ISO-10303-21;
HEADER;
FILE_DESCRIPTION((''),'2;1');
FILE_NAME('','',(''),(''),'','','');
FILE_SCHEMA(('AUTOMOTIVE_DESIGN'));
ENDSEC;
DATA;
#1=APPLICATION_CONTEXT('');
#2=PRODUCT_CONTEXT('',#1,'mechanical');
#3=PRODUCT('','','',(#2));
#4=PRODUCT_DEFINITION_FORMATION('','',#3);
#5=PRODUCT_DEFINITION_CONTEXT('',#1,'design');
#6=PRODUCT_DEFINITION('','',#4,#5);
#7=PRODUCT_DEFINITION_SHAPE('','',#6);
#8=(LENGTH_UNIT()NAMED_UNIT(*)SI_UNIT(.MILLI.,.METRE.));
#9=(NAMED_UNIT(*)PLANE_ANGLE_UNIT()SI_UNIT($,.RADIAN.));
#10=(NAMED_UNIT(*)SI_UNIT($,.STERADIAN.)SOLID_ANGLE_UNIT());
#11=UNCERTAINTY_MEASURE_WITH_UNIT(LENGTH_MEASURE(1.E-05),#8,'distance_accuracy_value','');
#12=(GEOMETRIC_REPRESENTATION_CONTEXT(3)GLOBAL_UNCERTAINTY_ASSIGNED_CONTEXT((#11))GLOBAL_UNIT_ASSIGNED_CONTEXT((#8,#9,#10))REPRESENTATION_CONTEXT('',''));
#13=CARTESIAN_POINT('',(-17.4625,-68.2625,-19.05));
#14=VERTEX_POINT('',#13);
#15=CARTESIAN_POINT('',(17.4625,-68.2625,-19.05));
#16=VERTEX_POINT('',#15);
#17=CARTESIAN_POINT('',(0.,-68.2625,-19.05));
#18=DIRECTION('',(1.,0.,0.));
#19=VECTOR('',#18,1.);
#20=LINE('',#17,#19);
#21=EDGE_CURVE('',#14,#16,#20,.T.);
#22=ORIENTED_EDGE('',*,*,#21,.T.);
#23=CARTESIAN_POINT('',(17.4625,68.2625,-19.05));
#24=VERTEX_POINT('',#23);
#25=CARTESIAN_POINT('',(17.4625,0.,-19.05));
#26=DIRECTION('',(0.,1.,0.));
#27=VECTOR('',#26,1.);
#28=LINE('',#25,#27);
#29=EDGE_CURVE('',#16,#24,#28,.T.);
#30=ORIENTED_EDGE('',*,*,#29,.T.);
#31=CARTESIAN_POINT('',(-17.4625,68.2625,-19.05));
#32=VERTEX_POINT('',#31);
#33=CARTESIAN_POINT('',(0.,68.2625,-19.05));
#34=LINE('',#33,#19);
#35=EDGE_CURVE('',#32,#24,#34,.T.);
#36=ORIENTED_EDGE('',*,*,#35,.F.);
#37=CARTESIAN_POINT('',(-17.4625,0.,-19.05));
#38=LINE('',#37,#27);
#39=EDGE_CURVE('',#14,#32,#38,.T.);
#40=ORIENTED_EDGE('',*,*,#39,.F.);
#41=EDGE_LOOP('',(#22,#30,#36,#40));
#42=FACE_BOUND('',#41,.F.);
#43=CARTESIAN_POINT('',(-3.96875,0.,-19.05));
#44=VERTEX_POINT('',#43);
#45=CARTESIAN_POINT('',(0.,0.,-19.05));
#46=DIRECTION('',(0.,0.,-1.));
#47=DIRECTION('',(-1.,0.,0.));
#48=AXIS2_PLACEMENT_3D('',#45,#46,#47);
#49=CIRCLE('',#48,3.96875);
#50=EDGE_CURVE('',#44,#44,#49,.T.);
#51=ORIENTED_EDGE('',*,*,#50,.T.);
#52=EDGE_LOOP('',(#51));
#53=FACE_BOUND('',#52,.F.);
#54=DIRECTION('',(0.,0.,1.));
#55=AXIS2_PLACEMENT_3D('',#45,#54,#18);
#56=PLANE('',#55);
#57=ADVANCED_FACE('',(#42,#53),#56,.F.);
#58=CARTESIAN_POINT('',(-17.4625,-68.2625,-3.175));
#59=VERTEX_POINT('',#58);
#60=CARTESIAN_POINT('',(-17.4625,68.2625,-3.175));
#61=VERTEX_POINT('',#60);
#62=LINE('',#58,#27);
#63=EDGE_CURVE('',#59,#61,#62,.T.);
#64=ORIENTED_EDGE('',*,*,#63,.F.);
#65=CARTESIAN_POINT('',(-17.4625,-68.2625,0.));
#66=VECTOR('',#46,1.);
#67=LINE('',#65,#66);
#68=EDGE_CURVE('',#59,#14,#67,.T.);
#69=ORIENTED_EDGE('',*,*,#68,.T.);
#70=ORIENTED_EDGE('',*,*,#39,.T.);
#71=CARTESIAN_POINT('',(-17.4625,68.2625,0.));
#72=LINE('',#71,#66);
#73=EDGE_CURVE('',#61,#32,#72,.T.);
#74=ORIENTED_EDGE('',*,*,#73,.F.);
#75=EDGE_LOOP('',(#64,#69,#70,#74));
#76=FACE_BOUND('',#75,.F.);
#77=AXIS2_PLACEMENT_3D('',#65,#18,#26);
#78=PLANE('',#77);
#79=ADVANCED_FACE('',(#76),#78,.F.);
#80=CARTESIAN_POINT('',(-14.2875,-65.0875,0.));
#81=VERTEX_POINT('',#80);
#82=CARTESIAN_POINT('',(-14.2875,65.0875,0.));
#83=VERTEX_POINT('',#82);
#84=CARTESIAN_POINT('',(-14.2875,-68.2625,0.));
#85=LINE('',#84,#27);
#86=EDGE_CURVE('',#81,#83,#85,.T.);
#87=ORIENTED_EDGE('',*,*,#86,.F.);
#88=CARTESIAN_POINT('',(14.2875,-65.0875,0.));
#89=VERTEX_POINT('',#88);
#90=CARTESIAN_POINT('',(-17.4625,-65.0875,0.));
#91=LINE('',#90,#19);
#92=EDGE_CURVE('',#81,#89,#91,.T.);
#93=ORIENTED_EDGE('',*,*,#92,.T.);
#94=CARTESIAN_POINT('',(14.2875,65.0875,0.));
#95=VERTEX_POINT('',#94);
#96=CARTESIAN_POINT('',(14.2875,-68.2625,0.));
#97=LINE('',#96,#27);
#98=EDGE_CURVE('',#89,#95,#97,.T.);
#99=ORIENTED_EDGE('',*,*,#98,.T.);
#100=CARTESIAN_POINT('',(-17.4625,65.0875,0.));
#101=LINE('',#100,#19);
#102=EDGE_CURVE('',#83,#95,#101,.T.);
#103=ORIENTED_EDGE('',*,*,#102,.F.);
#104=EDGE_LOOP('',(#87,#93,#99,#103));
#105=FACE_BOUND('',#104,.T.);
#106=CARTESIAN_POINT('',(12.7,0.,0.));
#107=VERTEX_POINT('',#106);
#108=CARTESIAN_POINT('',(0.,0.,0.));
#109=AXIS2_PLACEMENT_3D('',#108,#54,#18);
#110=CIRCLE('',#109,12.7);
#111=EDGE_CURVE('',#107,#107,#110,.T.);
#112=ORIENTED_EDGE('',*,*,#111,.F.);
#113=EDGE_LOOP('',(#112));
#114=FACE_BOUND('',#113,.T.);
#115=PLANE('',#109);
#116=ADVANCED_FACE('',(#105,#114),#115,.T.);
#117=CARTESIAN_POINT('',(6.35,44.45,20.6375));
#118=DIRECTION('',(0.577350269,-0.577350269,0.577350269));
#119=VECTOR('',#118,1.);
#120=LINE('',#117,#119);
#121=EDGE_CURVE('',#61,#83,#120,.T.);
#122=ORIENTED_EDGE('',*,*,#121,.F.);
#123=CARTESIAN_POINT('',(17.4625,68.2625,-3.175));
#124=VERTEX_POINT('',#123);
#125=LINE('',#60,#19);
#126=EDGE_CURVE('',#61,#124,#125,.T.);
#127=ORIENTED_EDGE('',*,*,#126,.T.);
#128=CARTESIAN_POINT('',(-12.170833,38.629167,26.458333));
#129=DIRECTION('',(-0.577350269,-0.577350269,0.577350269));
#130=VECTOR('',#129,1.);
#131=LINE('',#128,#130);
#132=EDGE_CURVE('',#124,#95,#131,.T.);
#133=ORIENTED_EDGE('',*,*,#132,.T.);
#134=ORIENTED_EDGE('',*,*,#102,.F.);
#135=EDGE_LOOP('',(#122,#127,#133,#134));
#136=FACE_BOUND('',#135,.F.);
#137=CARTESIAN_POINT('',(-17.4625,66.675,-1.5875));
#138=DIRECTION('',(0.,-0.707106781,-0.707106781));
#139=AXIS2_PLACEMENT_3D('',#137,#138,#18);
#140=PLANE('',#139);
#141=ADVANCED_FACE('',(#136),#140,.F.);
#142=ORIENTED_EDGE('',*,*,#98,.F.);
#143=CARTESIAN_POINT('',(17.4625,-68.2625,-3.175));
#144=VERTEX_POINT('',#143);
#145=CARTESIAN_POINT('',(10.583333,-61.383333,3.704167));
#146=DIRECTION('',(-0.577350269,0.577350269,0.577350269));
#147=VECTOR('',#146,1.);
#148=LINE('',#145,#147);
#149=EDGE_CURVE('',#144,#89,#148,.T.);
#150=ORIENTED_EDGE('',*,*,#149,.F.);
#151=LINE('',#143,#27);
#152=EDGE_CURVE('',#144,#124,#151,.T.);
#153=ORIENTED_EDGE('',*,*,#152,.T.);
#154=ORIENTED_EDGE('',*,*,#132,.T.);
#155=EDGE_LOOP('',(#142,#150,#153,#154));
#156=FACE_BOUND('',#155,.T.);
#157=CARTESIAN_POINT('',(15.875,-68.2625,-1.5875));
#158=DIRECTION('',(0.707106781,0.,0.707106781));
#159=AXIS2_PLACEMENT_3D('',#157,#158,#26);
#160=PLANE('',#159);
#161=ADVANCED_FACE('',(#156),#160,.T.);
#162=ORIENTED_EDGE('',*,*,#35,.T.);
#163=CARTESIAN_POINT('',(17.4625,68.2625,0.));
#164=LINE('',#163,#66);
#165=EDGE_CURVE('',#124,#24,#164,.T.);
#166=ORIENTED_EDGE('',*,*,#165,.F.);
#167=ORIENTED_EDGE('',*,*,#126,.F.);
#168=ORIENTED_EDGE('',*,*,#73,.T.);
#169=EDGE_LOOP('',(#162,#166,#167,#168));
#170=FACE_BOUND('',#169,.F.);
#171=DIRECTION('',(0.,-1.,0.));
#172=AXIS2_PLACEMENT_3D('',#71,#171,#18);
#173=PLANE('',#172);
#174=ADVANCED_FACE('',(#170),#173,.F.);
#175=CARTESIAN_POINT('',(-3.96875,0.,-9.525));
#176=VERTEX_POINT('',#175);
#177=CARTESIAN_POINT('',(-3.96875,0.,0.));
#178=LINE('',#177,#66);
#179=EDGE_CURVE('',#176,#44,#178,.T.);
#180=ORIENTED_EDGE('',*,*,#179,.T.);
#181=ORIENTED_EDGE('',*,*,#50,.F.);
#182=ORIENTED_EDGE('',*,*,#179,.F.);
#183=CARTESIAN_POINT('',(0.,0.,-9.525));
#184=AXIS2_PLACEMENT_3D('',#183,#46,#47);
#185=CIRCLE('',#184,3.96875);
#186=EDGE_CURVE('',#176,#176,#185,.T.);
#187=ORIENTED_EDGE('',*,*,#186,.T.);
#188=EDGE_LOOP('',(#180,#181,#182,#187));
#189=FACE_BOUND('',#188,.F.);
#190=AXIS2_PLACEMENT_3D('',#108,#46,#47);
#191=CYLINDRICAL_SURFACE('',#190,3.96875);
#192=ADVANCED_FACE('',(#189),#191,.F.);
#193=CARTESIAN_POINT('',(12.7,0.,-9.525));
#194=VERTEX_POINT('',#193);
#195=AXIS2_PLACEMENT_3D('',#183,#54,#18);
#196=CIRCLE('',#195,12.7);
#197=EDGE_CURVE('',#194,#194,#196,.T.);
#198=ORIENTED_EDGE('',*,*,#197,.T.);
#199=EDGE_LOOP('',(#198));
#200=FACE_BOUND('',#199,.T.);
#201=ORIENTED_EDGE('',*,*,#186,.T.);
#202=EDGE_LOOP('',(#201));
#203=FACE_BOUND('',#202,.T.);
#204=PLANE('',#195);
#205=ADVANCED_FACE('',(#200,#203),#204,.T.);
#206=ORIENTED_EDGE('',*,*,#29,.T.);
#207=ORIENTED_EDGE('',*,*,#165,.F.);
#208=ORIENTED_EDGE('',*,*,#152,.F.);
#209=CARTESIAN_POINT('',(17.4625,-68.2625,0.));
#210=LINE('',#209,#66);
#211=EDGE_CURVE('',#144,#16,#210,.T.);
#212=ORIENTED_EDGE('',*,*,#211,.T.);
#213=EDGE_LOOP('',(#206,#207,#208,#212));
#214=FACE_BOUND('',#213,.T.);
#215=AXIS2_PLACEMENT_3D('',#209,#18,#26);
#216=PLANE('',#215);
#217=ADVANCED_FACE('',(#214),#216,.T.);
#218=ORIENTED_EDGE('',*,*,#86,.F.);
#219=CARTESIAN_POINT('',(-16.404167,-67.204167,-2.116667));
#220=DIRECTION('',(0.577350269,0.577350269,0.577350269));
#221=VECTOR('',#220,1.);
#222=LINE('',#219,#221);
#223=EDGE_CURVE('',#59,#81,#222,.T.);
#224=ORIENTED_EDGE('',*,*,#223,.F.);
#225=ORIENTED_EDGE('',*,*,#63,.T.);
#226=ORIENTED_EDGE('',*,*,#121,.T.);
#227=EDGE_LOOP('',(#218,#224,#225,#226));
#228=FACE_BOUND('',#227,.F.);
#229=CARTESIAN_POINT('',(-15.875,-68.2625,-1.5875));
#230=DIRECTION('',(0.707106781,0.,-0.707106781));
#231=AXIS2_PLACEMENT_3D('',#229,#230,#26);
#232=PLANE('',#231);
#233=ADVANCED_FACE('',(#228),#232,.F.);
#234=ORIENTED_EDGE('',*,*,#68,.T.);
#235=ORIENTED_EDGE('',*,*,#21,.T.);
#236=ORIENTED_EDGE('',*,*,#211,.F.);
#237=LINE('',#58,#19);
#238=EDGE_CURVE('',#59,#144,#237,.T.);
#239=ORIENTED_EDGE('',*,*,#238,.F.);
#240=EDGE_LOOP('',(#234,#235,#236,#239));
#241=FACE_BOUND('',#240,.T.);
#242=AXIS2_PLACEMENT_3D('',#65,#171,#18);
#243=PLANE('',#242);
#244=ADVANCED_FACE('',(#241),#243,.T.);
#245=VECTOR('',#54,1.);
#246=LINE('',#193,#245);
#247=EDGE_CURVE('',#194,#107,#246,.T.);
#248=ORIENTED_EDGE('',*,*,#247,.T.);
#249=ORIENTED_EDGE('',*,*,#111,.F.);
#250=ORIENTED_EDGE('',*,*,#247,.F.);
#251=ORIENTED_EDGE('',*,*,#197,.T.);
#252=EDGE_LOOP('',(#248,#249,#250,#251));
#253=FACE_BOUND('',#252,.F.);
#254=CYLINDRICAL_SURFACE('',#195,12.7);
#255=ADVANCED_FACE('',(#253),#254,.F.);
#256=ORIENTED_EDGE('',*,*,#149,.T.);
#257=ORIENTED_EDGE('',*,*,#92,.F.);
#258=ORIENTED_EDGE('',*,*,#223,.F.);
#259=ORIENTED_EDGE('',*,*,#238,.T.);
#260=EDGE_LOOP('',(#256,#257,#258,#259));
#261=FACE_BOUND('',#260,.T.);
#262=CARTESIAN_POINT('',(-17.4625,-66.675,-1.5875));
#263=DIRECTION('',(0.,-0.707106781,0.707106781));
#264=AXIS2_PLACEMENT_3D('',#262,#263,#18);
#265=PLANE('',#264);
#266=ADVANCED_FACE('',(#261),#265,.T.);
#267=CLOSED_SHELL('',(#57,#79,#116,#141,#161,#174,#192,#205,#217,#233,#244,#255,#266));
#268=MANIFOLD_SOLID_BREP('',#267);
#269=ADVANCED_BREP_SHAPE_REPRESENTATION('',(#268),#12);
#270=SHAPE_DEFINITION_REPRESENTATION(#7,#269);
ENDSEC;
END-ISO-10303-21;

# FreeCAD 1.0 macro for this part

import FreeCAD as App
import Part
import Sketcher
Q = App.Units.Quantity


def edges_at(feature, points):
    """Names of the edges that pass closest to the given points."""
    edges = feature.Shape.Edges
    near = lambda p: min(range(len(edges)), key=lambda i: edges[i].distToShape(Part.Vertex(*p))[0])
    return sorted({f"Edge{near(p) + 1}" for p in points})


def add_polygon(sketch, points):
    """Adds a closed chain of lines whose ends are joined by coincident constraints."""
    first, n = sketch.GeometryCount, len(points)
    for a, b in zip(points, points[1:] + points[:1]):
        sketch.addGeometry(Part.LineSegment(App.Vector(*a, 0), App.Vector(*b, 0)), False)
    for i in range(n):
        sketch.addConstraint(Sketcher.Constraint("Coincident", first + i, 2, first + (i + 1) % n, 1))

doc = App.newDocument("Part")
body = doc.addObject("PartDesign::Body", "Body")

# Sketch on XY plane
sketch1 = body.newObject("Sketcher::SketchObject", "Sketch")
sketch1.AttachmentSupport = (doc.getObject("XY_Plane"), [""])
sketch1.MapMode = "FlatFace"
add_polygon(sketch1, [(-17.4625, 68.2625), (-17.4625, -68.2625), (17.4625, -68.2625), (17.4625, 68.2625)])  # lines 0-3
sketch1.addConstraint([
    Sketcher.Constraint("Vertical", 0),
    Sketcher.Constraint("Horizontal", 1),
    Sketcher.Constraint("Vertical", 2),
    Sketcher.Constraint("Horizontal", 3),
    Sketcher.Constraint("Symmetric", 0, 2, 2, 2, -1, 1),
    Sketcher.Constraint("DistanceX", 1, 1, 1, 2, Q("1.375 in")),
    Sketcher.Constraint("DistanceY", 0, 2, 0, 1, Q("5.375 in")),
])
pad1 = body.newObject("PartDesign::Pad", "Pad")
pad1.Profile = sketch1
pad1.Length = Q("0.75 in")
pad1.Reversed = True
doc.recompute()

chamfer = body.newObject("PartDesign::Chamfer", "Chamfer")
chamfer.Base = (pad1, edges_at(pad1, [
    (0, 68.263, 0),
    (-17.462, 0, 0),
    (0, -68.263, 0),
    (17.462, 0, 0),
]))
chamfer.ChamferType = "Two distances"
chamfer.Size = Q("0.125 in")
chamfer.Size2 = Q("0.125 in")

# Sketch on XY plane
sketch2 = body.newObject("Sketcher::SketchObject", "Sketch001")
sketch2.AttachmentSupport = (doc.getObject("XY_Plane"), [""])
sketch2.MapMode = "FlatFace"
sketch2.addGeometry(Part.Circle(App.Vector(0, 0, 0), App.Vector(0, 0, 1), 3.96875), False)
sketch2.addConstraint([
    Sketcher.Constraint("Coincident", 0, 3, -1, 1),
    Sketcher.Constraint("Diameter", 0, Q("0.3125 in")),
])
doc.recompute()
hole = body.newObject("PartDesign::Hole", "Hole")
hole.Profile = sketch2
hole.ThreadType = "None"
hole.Diameter = Q("0.3125 in")
hole.DepthType = "ThroughAll"
hole.HoleCutType = "Counterbore"
hole.HoleCutDiameter = Q("1 in")
hole.HoleCutDepth = Q("0.375 in")

doc.recompute()
